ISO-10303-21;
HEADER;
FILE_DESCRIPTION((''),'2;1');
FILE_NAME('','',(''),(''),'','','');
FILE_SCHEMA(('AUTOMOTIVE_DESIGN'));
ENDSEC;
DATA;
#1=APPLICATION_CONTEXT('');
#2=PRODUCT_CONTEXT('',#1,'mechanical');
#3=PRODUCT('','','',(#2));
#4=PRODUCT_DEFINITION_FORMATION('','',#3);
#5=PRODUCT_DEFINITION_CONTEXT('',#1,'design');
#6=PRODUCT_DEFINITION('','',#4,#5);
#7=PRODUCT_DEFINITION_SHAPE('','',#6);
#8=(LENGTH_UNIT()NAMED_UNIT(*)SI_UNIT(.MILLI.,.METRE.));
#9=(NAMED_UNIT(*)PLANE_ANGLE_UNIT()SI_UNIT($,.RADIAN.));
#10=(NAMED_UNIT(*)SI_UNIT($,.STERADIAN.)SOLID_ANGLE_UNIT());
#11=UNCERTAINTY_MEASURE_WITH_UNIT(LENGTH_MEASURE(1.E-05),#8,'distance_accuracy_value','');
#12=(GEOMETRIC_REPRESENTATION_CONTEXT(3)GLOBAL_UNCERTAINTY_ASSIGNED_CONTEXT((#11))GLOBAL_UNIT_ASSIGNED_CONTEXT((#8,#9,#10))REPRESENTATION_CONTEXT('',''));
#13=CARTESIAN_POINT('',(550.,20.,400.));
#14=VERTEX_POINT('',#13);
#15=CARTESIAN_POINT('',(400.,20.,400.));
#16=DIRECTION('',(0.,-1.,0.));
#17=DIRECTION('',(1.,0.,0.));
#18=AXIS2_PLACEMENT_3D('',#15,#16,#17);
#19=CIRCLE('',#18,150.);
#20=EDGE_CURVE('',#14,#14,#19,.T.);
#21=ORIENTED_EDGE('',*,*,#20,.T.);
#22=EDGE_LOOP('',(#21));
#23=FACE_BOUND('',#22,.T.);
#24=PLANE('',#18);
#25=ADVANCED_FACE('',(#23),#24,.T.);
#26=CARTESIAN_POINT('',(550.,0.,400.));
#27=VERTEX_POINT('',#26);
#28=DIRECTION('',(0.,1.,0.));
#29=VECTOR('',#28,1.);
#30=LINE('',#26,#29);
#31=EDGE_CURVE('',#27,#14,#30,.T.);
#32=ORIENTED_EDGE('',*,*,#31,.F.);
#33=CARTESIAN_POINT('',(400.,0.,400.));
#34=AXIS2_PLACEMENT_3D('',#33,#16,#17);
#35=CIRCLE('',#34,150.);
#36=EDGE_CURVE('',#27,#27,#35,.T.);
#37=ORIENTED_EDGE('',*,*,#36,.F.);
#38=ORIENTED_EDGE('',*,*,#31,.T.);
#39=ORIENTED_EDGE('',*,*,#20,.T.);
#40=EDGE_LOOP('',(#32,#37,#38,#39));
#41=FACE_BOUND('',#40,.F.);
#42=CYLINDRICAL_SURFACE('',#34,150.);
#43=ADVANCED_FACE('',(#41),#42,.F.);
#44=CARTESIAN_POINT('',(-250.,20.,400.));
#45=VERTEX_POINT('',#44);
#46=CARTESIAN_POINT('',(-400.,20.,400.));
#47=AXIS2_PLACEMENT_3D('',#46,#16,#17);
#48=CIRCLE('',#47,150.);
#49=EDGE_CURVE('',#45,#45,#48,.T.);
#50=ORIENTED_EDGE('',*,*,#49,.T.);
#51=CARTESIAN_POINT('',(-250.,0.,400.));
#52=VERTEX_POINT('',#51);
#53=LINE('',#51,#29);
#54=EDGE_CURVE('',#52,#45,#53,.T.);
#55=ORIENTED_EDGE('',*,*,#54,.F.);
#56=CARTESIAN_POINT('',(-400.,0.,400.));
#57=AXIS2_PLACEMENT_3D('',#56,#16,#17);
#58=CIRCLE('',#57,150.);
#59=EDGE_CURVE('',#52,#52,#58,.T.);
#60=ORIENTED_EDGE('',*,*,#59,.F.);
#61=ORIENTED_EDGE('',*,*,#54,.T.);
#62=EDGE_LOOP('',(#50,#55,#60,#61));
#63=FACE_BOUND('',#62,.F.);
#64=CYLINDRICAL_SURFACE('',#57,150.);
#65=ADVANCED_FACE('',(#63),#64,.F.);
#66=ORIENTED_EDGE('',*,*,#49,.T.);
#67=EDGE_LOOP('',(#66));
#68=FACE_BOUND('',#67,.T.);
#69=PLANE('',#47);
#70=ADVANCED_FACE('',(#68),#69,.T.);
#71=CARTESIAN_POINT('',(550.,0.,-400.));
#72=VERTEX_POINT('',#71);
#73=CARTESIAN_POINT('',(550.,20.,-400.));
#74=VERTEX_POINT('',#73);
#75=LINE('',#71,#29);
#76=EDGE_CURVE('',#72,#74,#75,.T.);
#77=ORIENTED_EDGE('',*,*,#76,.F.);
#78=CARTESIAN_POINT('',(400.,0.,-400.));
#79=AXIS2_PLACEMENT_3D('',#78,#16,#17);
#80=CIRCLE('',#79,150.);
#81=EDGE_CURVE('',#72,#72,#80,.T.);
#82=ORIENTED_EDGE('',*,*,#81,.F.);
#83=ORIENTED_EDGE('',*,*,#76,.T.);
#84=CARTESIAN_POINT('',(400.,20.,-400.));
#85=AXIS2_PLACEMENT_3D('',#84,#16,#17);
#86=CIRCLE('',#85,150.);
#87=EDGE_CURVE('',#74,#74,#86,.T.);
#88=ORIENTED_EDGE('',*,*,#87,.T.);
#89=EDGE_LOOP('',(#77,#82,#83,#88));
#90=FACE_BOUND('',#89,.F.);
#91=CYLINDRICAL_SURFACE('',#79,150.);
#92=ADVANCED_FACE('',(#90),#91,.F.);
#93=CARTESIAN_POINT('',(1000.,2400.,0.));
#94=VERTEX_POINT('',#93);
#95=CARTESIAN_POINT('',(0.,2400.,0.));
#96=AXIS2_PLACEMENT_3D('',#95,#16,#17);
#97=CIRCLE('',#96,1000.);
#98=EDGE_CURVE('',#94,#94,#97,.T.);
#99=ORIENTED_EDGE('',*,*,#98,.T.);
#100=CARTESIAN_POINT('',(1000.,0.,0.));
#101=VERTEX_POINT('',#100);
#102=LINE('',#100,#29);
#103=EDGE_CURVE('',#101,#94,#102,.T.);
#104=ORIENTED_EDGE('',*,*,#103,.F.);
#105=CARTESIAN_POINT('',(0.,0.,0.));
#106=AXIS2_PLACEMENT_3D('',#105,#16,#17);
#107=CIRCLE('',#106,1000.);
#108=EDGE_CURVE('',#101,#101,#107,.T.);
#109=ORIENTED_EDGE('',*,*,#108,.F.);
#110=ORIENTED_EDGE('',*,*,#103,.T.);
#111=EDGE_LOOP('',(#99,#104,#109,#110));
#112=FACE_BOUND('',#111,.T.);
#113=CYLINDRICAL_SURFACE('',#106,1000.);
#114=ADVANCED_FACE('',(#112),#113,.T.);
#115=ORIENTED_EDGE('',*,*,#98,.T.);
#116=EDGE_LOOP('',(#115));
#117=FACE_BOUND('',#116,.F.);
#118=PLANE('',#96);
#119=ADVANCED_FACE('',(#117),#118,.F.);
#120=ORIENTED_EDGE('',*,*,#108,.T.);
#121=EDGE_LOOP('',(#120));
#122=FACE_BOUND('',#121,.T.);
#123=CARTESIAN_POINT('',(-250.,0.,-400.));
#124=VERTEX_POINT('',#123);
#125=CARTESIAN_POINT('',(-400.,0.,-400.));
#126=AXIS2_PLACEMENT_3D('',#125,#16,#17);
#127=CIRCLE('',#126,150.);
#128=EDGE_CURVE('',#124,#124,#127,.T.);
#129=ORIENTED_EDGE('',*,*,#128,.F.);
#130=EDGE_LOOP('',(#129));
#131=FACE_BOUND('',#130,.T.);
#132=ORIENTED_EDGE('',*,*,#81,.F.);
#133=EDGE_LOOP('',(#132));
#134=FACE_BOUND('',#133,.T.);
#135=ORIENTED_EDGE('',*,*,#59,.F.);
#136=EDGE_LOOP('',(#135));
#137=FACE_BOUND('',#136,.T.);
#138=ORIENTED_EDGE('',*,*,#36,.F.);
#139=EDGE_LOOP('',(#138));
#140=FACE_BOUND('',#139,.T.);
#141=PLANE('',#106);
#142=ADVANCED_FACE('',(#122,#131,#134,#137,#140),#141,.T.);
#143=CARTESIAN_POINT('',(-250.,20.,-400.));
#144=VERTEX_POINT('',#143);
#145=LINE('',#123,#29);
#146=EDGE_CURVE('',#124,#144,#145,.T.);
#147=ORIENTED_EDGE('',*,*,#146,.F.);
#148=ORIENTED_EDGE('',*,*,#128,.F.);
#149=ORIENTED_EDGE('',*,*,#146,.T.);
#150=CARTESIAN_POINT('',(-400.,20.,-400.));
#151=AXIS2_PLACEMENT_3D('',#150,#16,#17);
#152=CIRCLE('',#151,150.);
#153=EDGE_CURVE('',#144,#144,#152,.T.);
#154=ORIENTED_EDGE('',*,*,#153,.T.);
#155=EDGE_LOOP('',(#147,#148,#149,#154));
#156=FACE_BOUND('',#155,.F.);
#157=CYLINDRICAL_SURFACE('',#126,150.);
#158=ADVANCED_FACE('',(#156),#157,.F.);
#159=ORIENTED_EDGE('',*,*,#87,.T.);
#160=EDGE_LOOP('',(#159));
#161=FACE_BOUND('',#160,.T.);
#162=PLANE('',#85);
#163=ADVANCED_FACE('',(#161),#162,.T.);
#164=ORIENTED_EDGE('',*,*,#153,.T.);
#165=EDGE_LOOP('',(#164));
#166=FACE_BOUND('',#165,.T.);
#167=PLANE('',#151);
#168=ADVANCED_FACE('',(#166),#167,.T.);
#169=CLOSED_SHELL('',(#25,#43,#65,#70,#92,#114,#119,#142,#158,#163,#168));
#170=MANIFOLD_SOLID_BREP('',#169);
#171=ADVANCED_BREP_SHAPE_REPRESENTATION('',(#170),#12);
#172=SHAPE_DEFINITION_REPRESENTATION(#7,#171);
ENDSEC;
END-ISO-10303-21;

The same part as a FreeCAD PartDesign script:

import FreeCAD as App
import Part
import Sketcher
from FreeCAD import Vector
Q = App.Units.Quantity

doc = App.newDocument("Part")
body = doc.addObject("PartDesign::Body", "Body")

# Sketch on XZ plane
sketch1 = body.newObject("Sketcher::SketchObject", "Sketch")
sketch1.AttachmentSupport = (doc.getObject("XZ_Plane"), [""])
sketch1.MapMode = "FlatFace"
sketch1.addGeometry(Part.Circle(Vector(0, 0, 0), Vector(0, 0, 1), 1000), False)
sketch1.addConstraint(Sketcher.Constraint("Coincident", 0, 3, -1, 1))
sketch1.addConstraint(Sketcher.Constraint("Diameter", 0, Q("2000 mm")))
pad1 = body.newObject("PartDesign::Pad", "Pad")
pad1.Profile = sketch1
pad1.Length = 2400
pad1.Reversed = True

# Sketch on XZ plane
sketch2 = body.newObject("Sketcher::SketchObject", "Sketch001")
sketch2.AttachmentSupport = (doc.getObject("XZ_Plane"), [""])
sketch2.MapMode = "FlatFace"
sketch2.addGeometry(Part.Circle(Vector(-400, 400, 0), Vector(0, 0, 1), 150), False)
sketch2.addGeometry(Part.Circle(Vector(-400, -400, 0), Vector(0, 0, 1), 150), False)
sketch2.addGeometry(Part.Circle(Vector(400, 400, 0), Vector(0, 0, 1), 150), False)
sketch2.addGeometry(Part.Circle(Vector(400, -400, 0), Vector(0, 0, 1), 150), False)
sketch2.addConstraint(Sketcher.Constraint("Equal", 0, 1))
sketch2.addConstraint(Sketcher.Constraint("Equal", 1, 2))
sketch2.addConstraint(Sketcher.Constraint("Equal", 2, 3))
sketch2.addConstraint(Sketcher.Constraint("Symmetric", 1, 3, 2, 3, -1, 1))
sketch2.addConstraint(Sketcher.Constraint("Symmetric", 0, 3, 3, 3, -1, 1))
sketch2.addConstraint(Sketcher.Constraint("Symmetric", 0, 3, 2, 3, -2))
sketch2.addConstraint(Sketcher.Constraint("Diameter", 0, Q("300 mm")))
sketch2.addConstraint(Sketcher.Constraint("DistanceX", 0, 3, -1, 1, Q("400 mm")))
sketch2.addConstraint(Sketcher.Constraint("DistanceY", -1, 1, 0, 3, Q("400 mm")))
pocket1 = body.newObject("PartDesign::Pocket", "Pocket")
pocket1.Profile = sketch2
pocket1.Length = 20

doc.recompute()
